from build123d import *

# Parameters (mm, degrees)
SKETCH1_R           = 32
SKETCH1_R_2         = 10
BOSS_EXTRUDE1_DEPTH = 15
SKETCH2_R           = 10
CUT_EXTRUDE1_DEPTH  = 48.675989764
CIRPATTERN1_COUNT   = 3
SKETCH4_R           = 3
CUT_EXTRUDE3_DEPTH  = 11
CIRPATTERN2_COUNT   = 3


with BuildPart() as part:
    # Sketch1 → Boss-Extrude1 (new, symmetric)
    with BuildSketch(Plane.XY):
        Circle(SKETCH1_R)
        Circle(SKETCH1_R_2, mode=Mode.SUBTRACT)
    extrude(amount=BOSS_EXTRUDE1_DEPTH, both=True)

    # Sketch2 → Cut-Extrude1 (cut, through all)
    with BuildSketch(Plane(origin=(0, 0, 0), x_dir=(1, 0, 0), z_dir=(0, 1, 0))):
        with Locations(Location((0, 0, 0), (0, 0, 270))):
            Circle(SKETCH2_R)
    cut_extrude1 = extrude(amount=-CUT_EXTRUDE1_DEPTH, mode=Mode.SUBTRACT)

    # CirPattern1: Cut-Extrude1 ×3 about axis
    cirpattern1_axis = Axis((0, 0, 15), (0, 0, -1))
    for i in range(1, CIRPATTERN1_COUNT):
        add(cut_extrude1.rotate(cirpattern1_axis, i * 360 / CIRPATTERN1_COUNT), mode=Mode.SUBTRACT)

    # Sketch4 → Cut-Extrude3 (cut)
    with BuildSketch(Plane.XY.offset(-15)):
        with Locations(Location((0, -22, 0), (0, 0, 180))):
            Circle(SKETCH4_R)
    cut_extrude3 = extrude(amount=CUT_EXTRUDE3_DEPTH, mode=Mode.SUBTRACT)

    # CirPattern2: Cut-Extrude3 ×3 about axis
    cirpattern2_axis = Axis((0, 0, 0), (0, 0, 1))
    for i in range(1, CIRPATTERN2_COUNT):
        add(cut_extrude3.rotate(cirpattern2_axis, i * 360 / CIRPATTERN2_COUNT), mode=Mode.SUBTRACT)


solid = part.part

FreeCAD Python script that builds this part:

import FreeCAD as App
import Part
import Sketcher
from FreeCAD import Vector
Q = App.Units.Quantity

doc = App.newDocument("Part")
body = doc.addObject("PartDesign::Body", "Body")

# Sketch on XY plane
sketch1 = doc.addObject("Sketcher::SketchObject", "Sketch")
body.addObject(sketch1)
sketch1.AttachmentSupport = (doc.XY_Plane, [""])
sketch1.MapMode = "FlatFace"
sketch1.addGeometry([
    Part.Circle(Vector(0, 0, 0), Vector(0, 0, 1), 32),
    Part.Circle(Vector(0, 0, 0), Vector(0, 0, 1), 10),
], False)
sketch1.addConstraint([
    Sketcher.Constraint("Coincident", 0, 3, -1, 1),
    Sketcher.Constraint("Coincident", 1, 3, -1, 1),
    Sketcher.Constraint("Diameter", 0, Q("64 mm")),
    Sketcher.Constraint("Diameter", 1, Q("20 mm")),
])
pad1 = doc.addObject("PartDesign::Pad", "Pad")
body.addObject(pad1)
pad1.Profile = sketch1
pad1.Length = 30
pad1.Midplane = True

# Sketch on XZ plane
sketch2 = doc.addObject("Sketcher::SketchObject", "Sketch001")
body.addObject(sketch2)
sketch2.AttachmentSupport = (doc.XZ_Plane, [""])
sketch2.MapMode = "FlatFace"
sketch2.addGeometry(Part.Circle(Vector(0, 0, 0), Vector(0, 0, 1), 10), False)
sketch2.addConstraint([
    Sketcher.Constraint("Coincident", 0, 3, -1, 1),
    Sketcher.Constraint("Diameter", 0, Q("20 mm")),
])
pocket1 = doc.addObject("PartDesign::Pocket", "Pocket")
body.addObject(pocket1)
pocket1.Profile = sketch2
pocket1.Type = "ThroughAll"
pocket1.Reversed = True
doc.recompute()

polarpattern = doc.addObject("PartDesign::PolarPattern", "PolarPattern")
body.addObject(polarpattern)
polarpattern.Originals = [pocket1]
polarpattern.Axis = (doc.Z_Axis, [""])
polarpattern.Angle = 360
polarpattern.Occurrences = 3
body.Tip = polarpattern

# Sketch on XY plane
sketch3 = doc.addObject("Sketcher::SketchObject", "Sketch002")
body.addObject(sketch3)
sketch3.AttachmentSupport = (doc.XY_Plane, [""])
sketch3.MapMode = "FlatFace"
sketch3.AttachmentOffset = App.Placement(Vector(0, 0, -15), App.Rotation())
sketch3.addGeometry(Part.Circle(Vector(0, -22, 0), Vector(0, 0, 1), 3), False)
sketch3.addConstraint([
    Sketcher.Constraint("PointOnObject", 0, 3, -2),
    Sketcher.Constraint("Diameter", 0, Q("6 mm")),
    Sketcher.Constraint("DistanceY", 0, 3, -1, 1, Q("22 mm")),
])
pocket2 = doc.addObject("PartDesign::Pocket", "Pocket001")
body.addObject(pocket2)
pocket2.Profile = sketch3
pocket2.Length = 11
pocket2.Reversed = True
doc.recompute()

polarpattern2 = doc.addObject("PartDesign::PolarPattern", "PolarPattern001")
body.addObject(polarpattern2)
polarpattern2.Originals = [pocket2]
polarpattern2.Axis = (doc.Z_Axis, [""])
polarpattern2.Angle = 360
polarpattern2.Occurrences = 3
body.Tip = polarpattern2

doc.recompute()
